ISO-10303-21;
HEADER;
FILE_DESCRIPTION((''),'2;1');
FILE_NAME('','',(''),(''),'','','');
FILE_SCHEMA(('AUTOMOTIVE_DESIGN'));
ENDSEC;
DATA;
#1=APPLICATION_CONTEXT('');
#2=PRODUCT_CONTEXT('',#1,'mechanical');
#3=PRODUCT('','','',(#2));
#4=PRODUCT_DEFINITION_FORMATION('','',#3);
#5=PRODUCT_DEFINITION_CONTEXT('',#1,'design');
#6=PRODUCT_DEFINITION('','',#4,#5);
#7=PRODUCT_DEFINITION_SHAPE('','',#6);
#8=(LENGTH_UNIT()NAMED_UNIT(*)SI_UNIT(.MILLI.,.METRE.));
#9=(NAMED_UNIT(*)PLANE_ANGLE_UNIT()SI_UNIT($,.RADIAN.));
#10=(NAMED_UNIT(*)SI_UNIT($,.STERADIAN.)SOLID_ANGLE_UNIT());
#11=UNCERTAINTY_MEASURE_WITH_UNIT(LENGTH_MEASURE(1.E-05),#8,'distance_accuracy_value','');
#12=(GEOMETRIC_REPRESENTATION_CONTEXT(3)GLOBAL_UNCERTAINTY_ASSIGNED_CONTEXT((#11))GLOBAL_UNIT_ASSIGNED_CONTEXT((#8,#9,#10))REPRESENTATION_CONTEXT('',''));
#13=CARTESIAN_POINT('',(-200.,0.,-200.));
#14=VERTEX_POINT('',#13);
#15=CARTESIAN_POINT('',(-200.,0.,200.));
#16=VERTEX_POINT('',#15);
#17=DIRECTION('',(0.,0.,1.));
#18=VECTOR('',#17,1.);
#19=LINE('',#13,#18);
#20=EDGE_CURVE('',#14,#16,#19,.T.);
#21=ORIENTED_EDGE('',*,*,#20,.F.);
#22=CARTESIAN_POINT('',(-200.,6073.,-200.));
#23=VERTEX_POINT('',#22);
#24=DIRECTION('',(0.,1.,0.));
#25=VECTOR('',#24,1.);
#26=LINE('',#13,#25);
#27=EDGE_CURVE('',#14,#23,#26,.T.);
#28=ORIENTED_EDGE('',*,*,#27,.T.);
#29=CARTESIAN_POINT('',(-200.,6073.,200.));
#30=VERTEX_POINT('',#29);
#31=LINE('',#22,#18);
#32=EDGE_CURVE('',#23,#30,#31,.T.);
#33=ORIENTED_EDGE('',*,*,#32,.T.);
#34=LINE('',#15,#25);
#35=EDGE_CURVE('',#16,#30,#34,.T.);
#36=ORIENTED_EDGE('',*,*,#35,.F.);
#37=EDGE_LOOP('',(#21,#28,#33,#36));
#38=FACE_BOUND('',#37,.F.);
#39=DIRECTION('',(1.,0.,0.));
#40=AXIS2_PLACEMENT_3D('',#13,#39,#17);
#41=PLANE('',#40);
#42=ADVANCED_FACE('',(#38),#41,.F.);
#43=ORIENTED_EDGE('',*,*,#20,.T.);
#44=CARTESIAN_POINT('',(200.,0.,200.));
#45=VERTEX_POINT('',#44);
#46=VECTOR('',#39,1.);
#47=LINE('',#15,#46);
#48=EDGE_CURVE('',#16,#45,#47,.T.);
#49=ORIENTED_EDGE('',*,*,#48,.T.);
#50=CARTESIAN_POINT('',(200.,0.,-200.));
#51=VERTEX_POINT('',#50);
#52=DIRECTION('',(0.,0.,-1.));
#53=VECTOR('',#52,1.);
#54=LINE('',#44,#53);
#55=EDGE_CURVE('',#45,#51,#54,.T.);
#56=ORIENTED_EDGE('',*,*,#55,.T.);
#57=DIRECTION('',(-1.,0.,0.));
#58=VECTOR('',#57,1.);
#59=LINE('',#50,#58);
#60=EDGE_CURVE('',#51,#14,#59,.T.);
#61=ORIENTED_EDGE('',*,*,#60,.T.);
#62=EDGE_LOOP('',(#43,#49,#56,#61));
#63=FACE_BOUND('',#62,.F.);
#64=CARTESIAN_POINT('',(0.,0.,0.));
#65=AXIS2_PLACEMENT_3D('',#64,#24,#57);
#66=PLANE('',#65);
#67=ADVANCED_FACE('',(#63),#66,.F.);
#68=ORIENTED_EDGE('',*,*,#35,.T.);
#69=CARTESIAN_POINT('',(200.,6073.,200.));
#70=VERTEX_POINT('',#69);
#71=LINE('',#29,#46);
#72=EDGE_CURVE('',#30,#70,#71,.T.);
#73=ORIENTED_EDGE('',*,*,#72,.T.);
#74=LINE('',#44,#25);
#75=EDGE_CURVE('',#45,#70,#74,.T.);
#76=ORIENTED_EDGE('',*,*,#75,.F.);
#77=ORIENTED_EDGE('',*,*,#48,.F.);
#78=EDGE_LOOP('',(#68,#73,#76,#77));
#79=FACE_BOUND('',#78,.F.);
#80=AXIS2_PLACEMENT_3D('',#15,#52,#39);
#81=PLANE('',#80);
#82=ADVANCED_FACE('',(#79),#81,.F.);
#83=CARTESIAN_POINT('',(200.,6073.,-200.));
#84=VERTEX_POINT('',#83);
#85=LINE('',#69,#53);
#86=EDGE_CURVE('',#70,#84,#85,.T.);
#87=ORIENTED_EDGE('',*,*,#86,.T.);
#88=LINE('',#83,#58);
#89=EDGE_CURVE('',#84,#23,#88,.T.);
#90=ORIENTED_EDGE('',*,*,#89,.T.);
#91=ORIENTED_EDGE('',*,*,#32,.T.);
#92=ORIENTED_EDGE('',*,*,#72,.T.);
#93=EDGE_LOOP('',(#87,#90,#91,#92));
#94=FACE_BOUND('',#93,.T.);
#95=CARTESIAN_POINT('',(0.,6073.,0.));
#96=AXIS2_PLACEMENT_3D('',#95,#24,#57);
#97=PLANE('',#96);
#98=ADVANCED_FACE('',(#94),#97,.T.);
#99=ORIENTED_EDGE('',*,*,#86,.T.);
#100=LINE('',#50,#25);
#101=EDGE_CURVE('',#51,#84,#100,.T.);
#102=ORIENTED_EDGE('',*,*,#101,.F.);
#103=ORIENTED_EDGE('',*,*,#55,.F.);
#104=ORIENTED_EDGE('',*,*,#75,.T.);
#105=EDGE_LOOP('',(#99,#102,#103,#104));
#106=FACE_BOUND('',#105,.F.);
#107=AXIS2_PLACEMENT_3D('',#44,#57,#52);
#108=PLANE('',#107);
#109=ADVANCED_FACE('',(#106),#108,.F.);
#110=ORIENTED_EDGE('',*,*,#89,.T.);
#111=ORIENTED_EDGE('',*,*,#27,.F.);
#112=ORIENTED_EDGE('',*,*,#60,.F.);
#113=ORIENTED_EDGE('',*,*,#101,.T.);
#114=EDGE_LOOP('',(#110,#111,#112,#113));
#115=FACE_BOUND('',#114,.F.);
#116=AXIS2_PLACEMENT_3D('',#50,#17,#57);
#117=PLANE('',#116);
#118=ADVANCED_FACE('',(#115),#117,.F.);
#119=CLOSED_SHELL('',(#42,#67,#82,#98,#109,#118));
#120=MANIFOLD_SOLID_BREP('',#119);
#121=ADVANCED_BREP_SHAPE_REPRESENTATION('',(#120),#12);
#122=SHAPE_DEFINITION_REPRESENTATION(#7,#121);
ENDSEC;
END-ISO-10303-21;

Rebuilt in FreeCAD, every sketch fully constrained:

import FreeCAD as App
import Part
import Sketcher

V = App.Vector

doc = App.newDocument("Part")
body = doc.addObject("PartDesign::Body", "Body")

# Sketch on XZ plane
sketch1 = doc.addObject("Sketcher::SketchObject", "Sketch")
body.addObject(sketch1)
sketch1.AttachmentSupport = (doc.XZ_Plane, [""])
sketch1.MapMode = "FlatFace"
sketch1.addGeometry(Part.LineSegment(V(-200, -200, 0), V(-200, 200, 0)), False)
sketch1.addGeometry(Part.LineSegment(V(-200, 200, 0), V(200, 200, 0)), False)
sketch1.addGeometry(Part.LineSegment(V(200, 200, 0), V(200, -200, 0)), False)
sketch1.addGeometry(Part.LineSegment(V(200, -200, 0), V(-200, -200, 0)), False)
sketch1.addConstraint(Sketcher.Constraint("Coincident", 0, 2, 1, 1))
sketch1.addConstraint(Sketcher.Constraint("Coincident", 1, 2, 2, 1))
sketch1.addConstraint(Sketcher.Constraint("Coincident", 2, 2, 3, 1))
sketch1.addConstraint(Sketcher.Constraint("Coincident", 3, 2, 0, 1))
sketch1.addConstraint(Sketcher.Constraint("Vertical", 0))
sketch1.addConstraint(Sketcher.Constraint("Horizontal", 1))
sketch1.addConstraint(Sketcher.Constraint("Vertical", 2))
sketch1.addConstraint(Sketcher.Constraint("Horizontal", 3))
sketch1.addConstraint(Sketcher.Constraint("Symmetric", 0, 2, 2, 2, -1, 1))
sketch1.addConstraint(Sketcher.Constraint("Equal", 3, 0))
sketch1.addConstraint(Sketcher.Constraint("DistanceX", 1, 1, 1, 2, 400.0))
pad1 = doc.addObject("PartDesign::Pad", "Pad")
body.addObject(pad1)
pad1.Profile = sketch1
pad1.Length = 6073
pad1.Reversed = True

doc.recompute()
